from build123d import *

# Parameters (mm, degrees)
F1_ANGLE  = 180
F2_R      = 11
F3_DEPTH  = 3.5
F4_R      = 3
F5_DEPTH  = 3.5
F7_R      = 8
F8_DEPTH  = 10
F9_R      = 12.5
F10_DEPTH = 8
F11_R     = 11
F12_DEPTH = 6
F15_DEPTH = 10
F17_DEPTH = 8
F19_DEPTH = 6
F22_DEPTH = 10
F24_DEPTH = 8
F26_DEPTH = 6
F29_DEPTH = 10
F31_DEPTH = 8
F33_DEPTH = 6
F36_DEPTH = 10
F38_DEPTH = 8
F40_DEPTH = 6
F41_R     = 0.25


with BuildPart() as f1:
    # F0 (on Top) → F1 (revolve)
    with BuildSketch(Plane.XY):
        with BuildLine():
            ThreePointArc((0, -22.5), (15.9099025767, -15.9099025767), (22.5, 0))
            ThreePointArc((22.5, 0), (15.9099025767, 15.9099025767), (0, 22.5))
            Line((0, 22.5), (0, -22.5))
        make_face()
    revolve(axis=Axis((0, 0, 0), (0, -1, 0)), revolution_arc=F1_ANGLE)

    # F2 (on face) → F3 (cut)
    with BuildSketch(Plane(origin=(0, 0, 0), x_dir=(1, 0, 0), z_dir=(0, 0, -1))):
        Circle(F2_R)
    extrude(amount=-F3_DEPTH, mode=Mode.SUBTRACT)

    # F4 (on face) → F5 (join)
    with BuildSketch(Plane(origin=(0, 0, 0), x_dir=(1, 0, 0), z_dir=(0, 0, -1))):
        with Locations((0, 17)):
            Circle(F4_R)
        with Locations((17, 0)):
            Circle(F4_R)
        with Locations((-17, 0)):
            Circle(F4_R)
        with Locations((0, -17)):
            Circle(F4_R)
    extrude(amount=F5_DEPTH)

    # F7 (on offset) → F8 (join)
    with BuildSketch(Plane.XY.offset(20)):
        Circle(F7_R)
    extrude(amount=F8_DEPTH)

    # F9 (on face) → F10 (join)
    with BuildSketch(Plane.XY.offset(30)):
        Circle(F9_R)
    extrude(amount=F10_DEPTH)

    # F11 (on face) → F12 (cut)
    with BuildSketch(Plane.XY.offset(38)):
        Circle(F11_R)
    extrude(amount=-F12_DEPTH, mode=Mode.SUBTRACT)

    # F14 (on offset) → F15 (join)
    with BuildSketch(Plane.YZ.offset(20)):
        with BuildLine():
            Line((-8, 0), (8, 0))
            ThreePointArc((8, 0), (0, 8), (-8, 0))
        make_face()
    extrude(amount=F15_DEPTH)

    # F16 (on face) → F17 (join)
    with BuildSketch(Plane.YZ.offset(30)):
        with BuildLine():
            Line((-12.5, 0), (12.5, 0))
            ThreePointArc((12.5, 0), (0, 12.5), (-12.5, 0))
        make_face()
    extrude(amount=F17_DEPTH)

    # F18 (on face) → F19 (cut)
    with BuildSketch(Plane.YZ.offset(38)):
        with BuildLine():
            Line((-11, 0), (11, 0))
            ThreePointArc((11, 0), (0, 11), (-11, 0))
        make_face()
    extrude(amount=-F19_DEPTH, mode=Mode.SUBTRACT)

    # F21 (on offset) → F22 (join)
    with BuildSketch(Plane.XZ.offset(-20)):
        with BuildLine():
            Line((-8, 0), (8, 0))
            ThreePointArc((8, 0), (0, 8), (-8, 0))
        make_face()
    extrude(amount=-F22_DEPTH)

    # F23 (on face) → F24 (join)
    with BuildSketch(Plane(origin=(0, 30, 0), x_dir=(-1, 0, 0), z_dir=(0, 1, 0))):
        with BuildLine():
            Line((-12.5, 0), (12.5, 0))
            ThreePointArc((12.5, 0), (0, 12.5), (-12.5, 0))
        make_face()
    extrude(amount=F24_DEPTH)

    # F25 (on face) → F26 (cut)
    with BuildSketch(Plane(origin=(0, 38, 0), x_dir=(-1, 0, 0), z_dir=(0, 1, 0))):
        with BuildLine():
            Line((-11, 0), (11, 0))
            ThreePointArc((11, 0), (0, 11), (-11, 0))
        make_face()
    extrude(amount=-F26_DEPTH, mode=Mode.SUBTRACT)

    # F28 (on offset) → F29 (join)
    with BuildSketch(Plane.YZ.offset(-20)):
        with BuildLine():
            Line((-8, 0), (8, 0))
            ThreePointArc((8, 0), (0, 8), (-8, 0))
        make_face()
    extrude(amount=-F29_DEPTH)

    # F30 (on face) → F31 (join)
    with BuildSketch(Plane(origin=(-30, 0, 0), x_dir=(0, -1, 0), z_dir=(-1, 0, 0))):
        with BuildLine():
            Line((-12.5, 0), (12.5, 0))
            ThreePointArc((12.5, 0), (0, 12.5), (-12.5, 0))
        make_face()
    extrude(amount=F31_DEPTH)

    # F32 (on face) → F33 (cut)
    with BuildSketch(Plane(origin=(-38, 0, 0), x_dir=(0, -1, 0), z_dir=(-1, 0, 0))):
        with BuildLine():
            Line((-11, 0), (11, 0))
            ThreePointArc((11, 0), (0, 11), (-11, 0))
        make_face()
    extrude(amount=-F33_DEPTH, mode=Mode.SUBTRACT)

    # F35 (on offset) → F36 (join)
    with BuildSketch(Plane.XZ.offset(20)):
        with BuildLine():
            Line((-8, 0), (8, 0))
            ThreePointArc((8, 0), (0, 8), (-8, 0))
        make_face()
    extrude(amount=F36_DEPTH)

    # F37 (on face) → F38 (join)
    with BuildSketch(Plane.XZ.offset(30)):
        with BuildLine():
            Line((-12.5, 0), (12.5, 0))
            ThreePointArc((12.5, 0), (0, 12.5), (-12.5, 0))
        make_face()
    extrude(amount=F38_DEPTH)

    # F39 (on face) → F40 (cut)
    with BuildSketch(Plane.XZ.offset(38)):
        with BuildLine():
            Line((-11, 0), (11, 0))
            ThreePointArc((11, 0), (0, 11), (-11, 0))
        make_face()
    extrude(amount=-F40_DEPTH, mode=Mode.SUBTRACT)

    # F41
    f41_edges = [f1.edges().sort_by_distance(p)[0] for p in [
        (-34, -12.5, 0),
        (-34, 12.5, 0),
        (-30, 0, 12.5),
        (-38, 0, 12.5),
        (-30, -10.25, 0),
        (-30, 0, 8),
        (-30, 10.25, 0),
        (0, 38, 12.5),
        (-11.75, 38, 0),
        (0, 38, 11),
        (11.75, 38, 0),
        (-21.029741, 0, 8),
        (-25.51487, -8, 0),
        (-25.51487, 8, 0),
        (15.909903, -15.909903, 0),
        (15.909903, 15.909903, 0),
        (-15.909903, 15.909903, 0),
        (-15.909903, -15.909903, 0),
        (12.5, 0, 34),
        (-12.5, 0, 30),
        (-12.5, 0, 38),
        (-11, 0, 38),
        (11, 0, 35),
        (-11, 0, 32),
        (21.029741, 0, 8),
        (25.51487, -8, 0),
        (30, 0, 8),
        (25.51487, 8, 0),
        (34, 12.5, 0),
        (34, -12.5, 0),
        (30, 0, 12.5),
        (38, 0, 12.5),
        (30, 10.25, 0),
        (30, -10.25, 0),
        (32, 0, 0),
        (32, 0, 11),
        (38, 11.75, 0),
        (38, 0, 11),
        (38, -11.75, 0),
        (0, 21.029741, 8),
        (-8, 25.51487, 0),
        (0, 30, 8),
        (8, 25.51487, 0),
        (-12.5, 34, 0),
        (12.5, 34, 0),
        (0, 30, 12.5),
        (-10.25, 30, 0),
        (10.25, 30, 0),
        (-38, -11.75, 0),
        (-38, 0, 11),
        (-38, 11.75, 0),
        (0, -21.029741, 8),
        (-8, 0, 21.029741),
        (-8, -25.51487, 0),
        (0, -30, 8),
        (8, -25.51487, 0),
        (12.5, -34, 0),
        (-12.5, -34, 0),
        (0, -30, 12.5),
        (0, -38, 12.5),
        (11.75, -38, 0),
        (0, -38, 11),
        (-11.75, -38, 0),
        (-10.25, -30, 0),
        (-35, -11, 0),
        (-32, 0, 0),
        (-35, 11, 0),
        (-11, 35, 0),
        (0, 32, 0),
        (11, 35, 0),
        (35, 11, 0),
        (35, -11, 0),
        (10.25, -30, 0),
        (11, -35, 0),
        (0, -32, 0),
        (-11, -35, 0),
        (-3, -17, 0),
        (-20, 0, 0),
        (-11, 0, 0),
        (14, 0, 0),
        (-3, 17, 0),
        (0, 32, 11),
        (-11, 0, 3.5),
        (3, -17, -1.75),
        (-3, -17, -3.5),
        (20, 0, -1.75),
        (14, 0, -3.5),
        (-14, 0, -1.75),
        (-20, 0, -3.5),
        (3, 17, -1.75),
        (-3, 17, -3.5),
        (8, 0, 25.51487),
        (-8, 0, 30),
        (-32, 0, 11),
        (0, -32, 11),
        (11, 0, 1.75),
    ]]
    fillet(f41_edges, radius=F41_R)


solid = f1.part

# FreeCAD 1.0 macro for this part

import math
import FreeCAD as App
import Part
import Sketcher

V = App.Vector

doc = App.newDocument("Part")
body = doc.addObject("PartDesign::Body", "Body")

sketch1 = body.newObject("Sketcher::SketchObject", "Sketch")
sketch1.AttachmentSupport = (doc.getObject("XY_Plane"), [""])
sketch1.MapMode = "FlatFace"
sketch1.addGeometry([
    Part.ArcOfCircle(Part.Circle(V(0, 0, 0), V(0, 0, 1), 22), math.radians(-90), math.radians(90)),
    Part.LineSegment(V(0, 22, 0), V(0, -22, 0)),
], False)
sketch1.addConstraint([
    Sketcher.Constraint("Coincident", 0, 1, 1, 2),
    Sketcher.Constraint("Coincident", 1, 1, 0, 2),
    Sketcher.Constraint("Vertical", 1),
    Sketcher.Constraint("Coincident", 0, 3, -1, 1),
    Sketcher.Constraint("PointOnObject", 0, 1, -2),
    Sketcher.Constraint("Radius", 0, 22.5),
])
revolution = body.newObject("PartDesign::Revolution", "Revolution")
revolution.Profile = sketch1
revolution.ReferenceAxis = (sketch1, ["V_Axis"])
revolution.Angle = 180
revolution.Reversed = True

sketch2 = body.newObject("Sketcher::SketchObject", "Sketch001")
sketch2.AttachmentSupport = (doc.getObject("XY_Plane"), [""])
sketch2.MapMode = "FlatFace"
sketch2.addGeometry(Part.Circle(V(0, 0, 0), V(0, 0, 1), 11), False)
sketch2.addConstraint([
    Sketcher.Constraint("Coincident", 0, 3, -1, 1),
    Sketcher.Constraint("Diameter", 0, 22.0),
])
pocket1 = body.newObject("PartDesign::Pocket", "Pocket")
pocket1.Profile = sketch2
pocket1.Length = 3.5
pocket1.Reversed = True

sketch3 = body.newObject("Sketcher::SketchObject", "Sketch002")
sketch3.AttachmentSupport = (doc.getObject("XY_Plane"), [""])
sketch3.MapMode = "FlatFace"
sketch3.addGeometry([
    Part.Circle(V(0, -17, 0), V(0, 0, 1), 3),
    Part.Circle(V(17, 0, 0), V(0, 0, 1), 3),
    Part.Circle(V(-17, 0, 0), V(0, 0, 1), 3),
    Part.Circle(V(0, 17, 0), V(0, 0, 1), 3),
], False)
sketch3.addConstraint([
    Sketcher.Constraint("Equal", 0, 1),
    Sketcher.Constraint("Equal", 1, 2),
    Sketcher.Constraint("Equal", 2, 3),
    Sketcher.Constraint("Symmetric", 1, 3, 2, 3, -1, 1),
    Sketcher.Constraint("Symmetric", 0, 3, 3, 3, -1, 1),
    Sketcher.Constraint("PointOnObject", 0, 3, -2),
    Sketcher.Constraint("PointOnObject", 1, 3, -1),
    Sketcher.Constraint("Diameter", 0, 6.0),
    Sketcher.Constraint("DistanceY", 0, 3, -1, 1, 17.0),
    Sketcher.Constraint("DistanceX", -1, 1, 1, 3, 17.0),
])
pad1 = body.newObject("PartDesign::Pad", "Pad")
pad1.Profile = sketch3
pad1.Length = 3.5
pad1.Reversed = True

sketch4 = body.newObject("Sketcher::SketchObject", "Sketch003")
sketch4.AttachmentSupport = (doc.getObject("XY_Plane"), [""])
sketch4.MapMode = "FlatFace"
sketch4.AttachmentOffset = App.Placement(V(0, 0, 20), App.Rotation())
sketch4.addGeometry(Part.Circle(V(0, 0, 0), V(0, 0, 1), 8), False)
sketch4.addConstraint([
    Sketcher.Constraint("Coincident", 0, 3, -1, 1),
    Sketcher.Constraint("Diameter", 0, 16.0),
])
pad2 = body.newObject("PartDesign::Pad", "Pad001")
pad2.Profile = sketch4
pad2.Length = 10

sketch5 = body.newObject("Sketcher::SketchObject", "Sketch004")
sketch5.AttachmentSupport = (doc.getObject("XY_Plane"), [""])
sketch5.MapMode = "FlatFace"
sketch5.AttachmentOffset = App.Placement(V(0, 0, 30), App.Rotation())
sketch5.addGeometry(Part.Circle(V(0, 0, 0), V(0, 0, 1), 12), False)
sketch5.addConstraint([
    Sketcher.Constraint("Coincident", 0, 3, -1, 1),
    Sketcher.Constraint("Diameter", 0, 25.0),
])
pad3 = body.newObject("PartDesign::Pad", "Pad002")
pad3.Profile = sketch5
pad3.Length = 8

sketch6 = body.newObject("Sketcher::SketchObject", "Sketch005")
sketch6.AttachmentSupport = (doc.getObject("XY_Plane"), [""])
sketch6.MapMode = "FlatFace"
sketch6.AttachmentOffset = App.Placement(V(0, 0, 38), App.Rotation())
sketch6.addGeometry(Part.Circle(V(0, 0, 0), V(0, 0, 1), 11), False)
sketch6.addConstraint([
    Sketcher.Constraint("Coincident", 0, 3, -1, 1),
    Sketcher.Constraint("Diameter", 0, 22.0),
])
pocket2 = body.newObject("PartDesign::Pocket", "Pocket001")
pocket2.Profile = sketch6
pocket2.Length = 6

sketch7 = body.newObject("Sketcher::SketchObject", "Sketch006")
sketch7.AttachmentSupport = (doc.getObject("YZ_Plane"), [""])
sketch7.MapMode = "FlatFace"
sketch7.AttachmentOffset = App.Placement(V(0, 0, 20), App.Rotation())
sketch7.addGeometry([
    Part.LineSegment(V(-8, 0, 0), V(8, 0, 0)),
    Part.ArcOfCircle(Part.Circle(V(0, 0, 0), V(0, 0, 1), 8), math.radians(0), math.radians(180)),
], False)
sketch7.addConstraint([
    Sketcher.Constraint("Coincident", 0, 1, 1, 2),
    Sketcher.Constraint("Coincident", 1, 1, 0, 2),
    Sketcher.Constraint("Horizontal", 0),
    Sketcher.Constraint("Coincident", 1, 3, -1, 1),
    Sketcher.Constraint("PointOnObject", 0, 1, -1),
    Sketcher.Constraint("Radius", 1, 8.0),
])
pad4 = body.newObject("PartDesign::Pad", "Pad003")
pad4.Profile = sketch7
pad4.Length = 10

sketch8 = body.newObject("Sketcher::SketchObject", "Sketch007")
sketch8.AttachmentSupport = (doc.getObject("YZ_Plane"), [""])
sketch8.MapMode = "FlatFace"
sketch8.AttachmentOffset = App.Placement(V(0, 0, 30), App.Rotation())
sketch8.addGeometry([
    Part.LineSegment(V(-12, 0, 0), V(12, 0, 0)),
    Part.ArcOfCircle(Part.Circle(V(0, 0, 0), V(0, 0, 1), 12), math.radians(0), math.radians(180)),
], False)
sketch8.addConstraint([
    Sketcher.Constraint("Coincident", 0, 1, 1, 2),
    Sketcher.Constraint("Coincident", 1, 1, 0, 2),
    Sketcher.Constraint("Horizontal", 0),
    Sketcher.Constraint("Coincident", 1, 3, -1, 1),
    Sketcher.Constraint("PointOnObject", 0, 1, -1),
    Sketcher.Constraint("Radius", 1, 12.5),
])
pad5 = body.newObject("PartDesign::Pad", "Pad004")
pad5.Profile = sketch8
pad5.Length = 8

sketch9 = body.newObject("Sketcher::SketchObject", "Sketch008")
sketch9.AttachmentSupport = (doc.getObject("YZ_Plane"), [""])
sketch9.MapMode = "FlatFace"
sketch9.AttachmentOffset = App.Placement(V(0, 0, 38), App.Rotation())
sketch9.addGeometry([
    Part.LineSegment(V(-11, 0, 0), V(11, 0, 0)),
    Part.ArcOfCircle(Part.Circle(V(0, 0, 0), V(0, 0, 1), 11), math.radians(0), math.radians(180)),
], False)
sketch9.addConstraint([
    Sketcher.Constraint("Coincident", 0, 1, 1, 2),
    Sketcher.Constraint("Coincident", 1, 1, 0, 2),
    Sketcher.Constraint("Horizontal", 0),
    Sketcher.Constraint("Coincident", 1, 3, -1, 1),
    Sketcher.Constraint("PointOnObject", 0, 1, -1),
    Sketcher.Constraint("Radius", 1, 11.0),
])
pocket3 = body.newObject("PartDesign::Pocket", "Pocket002")
pocket3.Profile = sketch9
pocket3.Length = 6

sketch10 = body.newObject("Sketcher::SketchObject", "Sketch009")
sketch10.AttachmentSupport = (doc.getObject("XZ_Plane"), [""])
sketch10.MapMode = "FlatFace"
sketch10.AttachmentOffset = App.Placement(V(0, 0, -20), App.Rotation())
sketch10.addGeometry([
    Part.LineSegment(V(-8, 0, 0), V(8, 0, 0)),
    Part.ArcOfCircle(Part.Circle(V(0, 0, 0), V(0, 0, 1), 8), math.radians(0), math.radians(180)),
], False)
sketch10.addConstraint([
    Sketcher.Constraint("Coincident", 0, 1, 1, 2),
    Sketcher.Constraint("Coincident", 1, 1, 0, 2),
    Sketcher.Constraint("Horizontal", 0),
    Sketcher.Constraint("Coincident", 1, 3, -1, 1),
    Sketcher.Constraint("PointOnObject", 0, 1, -1),
    Sketcher.Constraint("Radius", 1, 8.0),
])
pad6 = body.newObject("PartDesign::Pad", "Pad005")
pad6.Profile = sketch10
pad6.Length = 10
pad6.Reversed = True

sketch11 = body.newObject("Sketcher::SketchObject", "Sketch010")
sketch11.AttachmentSupport = (doc.getObject("XZ_Plane"), [""])
sketch11.MapMode = "FlatFace"
sketch11.AttachmentOffset = App.Placement(V(0, 0, -30), App.Rotation())
sketch11.addGeometry([
    Part.LineSegment(V(12, 0, 0), V(-12, 0, 0)),
    Part.ArcOfCircle(Part.Circle(V(0, 0, 0), V(0, 0, 1), 12), math.radians(0), math.radians(180)),
], False)
sketch11.addConstraint([
    Sketcher.Constraint("Coincident", 0, 1, 1, 1),
    Sketcher.Constraint("Coincident", 1, 2, 0, 2),
    Sketcher.Constraint("Horizontal", 0),
    Sketcher.Constraint("Coincident", 1, 3, -1, 1),
    Sketcher.Constraint("PointOnObject", 0, 1, -1),
    Sketcher.Constraint("Radius", 1, 12.5),
])
pad7 = body.newObject("PartDesign::Pad", "Pad006")
pad7.Profile = sketch11
pad7.Length = 8
pad7.Reversed = True

sketch12 = body.newObject("Sketcher::SketchObject", "Sketch011")
sketch12.AttachmentSupport = (doc.getObject("XZ_Plane"), [""])
sketch12.MapMode = "FlatFace"
sketch12.AttachmentOffset = App.Placement(V(0, 0, -38), App.Rotation())
sketch12.addGeometry([
    Part.LineSegment(V(11, 0, 0), V(-11, 0, 0)),
    Part.ArcOfCircle(Part.Circle(V(0, 0, 0), V(0, 0, 1), 11), math.radians(0), math.radians(180)),
], False)
sketch12.addConstraint([
    Sketcher.Constraint("Coincident", 0, 1, 1, 1),
    Sketcher.Constraint("Coincident", 1, 2, 0, 2),
    Sketcher.Constraint("Horizontal", 0),
    Sketcher.Constraint("Coincident", 1, 3, -1, 1),
    Sketcher.Constraint("PointOnObject", 0, 1, -1),
    Sketcher.Constraint("Radius", 1, 11.0),
])
pocket4 = body.newObject("PartDesign::Pocket", "Pocket003")
pocket4.Profile = sketch12
pocket4.Length = 6
pocket4.Reversed = True

sketch13 = body.newObject("Sketcher::SketchObject", "Sketch012")
sketch13.AttachmentSupport = (doc.getObject("YZ_Plane"), [""])
sketch13.MapMode = "FlatFace"
sketch13.AttachmentOffset = App.Placement(V(0, 0, -20), App.Rotation())
sketch13.addGeometry([
    Part.LineSegment(V(-8, 0, 0), V(8, 0, 0)),
    Part.ArcOfCircle(Part.Circle(V(0, 0, 0), V(0, 0, 1), 8), math.radians(0), math.radians(180)),
], False)
sketch13.addConstraint([
    Sketcher.Constraint("Coincident", 0, 1, 1, 2),
    Sketcher.Constraint("Coincident", 1, 1, 0, 2),
    Sketcher.Constraint("Horizontal", 0),
    Sketcher.Constraint("Coincident", 1, 3, -1, 1),
    Sketcher.Constraint("PointOnObject", 0, 1, -1),
    Sketcher.Constraint("Radius", 1, 8.0),
])
pad8 = body.newObject("PartDesign::Pad", "Pad007")
pad8.Profile = sketch13
pad8.Length = 10
pad8.Reversed = True

sketch14 = body.newObject("Sketcher::SketchObject", "Sketch013")
sketch14.AttachmentSupport = (doc.getObject("YZ_Plane"), [""])
sketch14.MapMode = "FlatFace"
sketch14.AttachmentOffset = App.Placement(V(0, 0, -30), App.Rotation())
sketch14.addGeometry([
    Part.LineSegment(V(12, 0, 0), V(-12, 0, 0)),
    Part.ArcOfCircle(Part.Circle(V(0, 0, 0), V(0, 0, 1), 12), math.radians(0), math.radians(180)),
], False)
sketch14.addConstraint([
    Sketcher.Constraint("Coincident", 0, 1, 1, 1),
    Sketcher.Constraint("Coincident", 1, 2, 0, 2),
    Sketcher.Constraint("Horizontal", 0),
    Sketcher.Constraint("Coincident", 1, 3, -1, 1),
    Sketcher.Constraint("PointOnObject", 0, 1, -1),
    Sketcher.Constraint("Radius", 1, 12.5),
])
pad9 = body.newObject("PartDesign::Pad", "Pad008")
pad9.Profile = sketch14
pad9.Length = 8
pad9.Reversed = True

sketch15 = body.newObject("Sketcher::SketchObject", "Sketch014")
sketch15.AttachmentSupport = (doc.getObject("YZ_Plane"), [""])
sketch15.MapMode = "FlatFace"
sketch15.AttachmentOffset = App.Placement(V(0, 0, -38), App.Rotation())
sketch15.addGeometry([
    Part.LineSegment(V(11, 0, 0), V(-11, 0, 0)),
    Part.ArcOfCircle(Part.Circle(V(0, 0, 0), V(0, 0, 1), 11), math.radians(0), math.radians(180)),
], False)
sketch15.addConstraint([
    Sketcher.Constraint("Coincident", 0, 1, 1, 1),
    Sketcher.Constraint("Coincident", 1, 2, 0, 2),
    Sketcher.Constraint("Horizontal", 0),
    Sketcher.Constraint("Coincident", 1, 3, -1, 1),
    Sketcher.Constraint("PointOnObject", 0, 1, -1),
    Sketcher.Constraint("Radius", 1, 11.0),
])
pocket5 = body.newObject("PartDesign::Pocket", "Pocket004")
pocket5.Profile = sketch15
pocket5.Length = 6
pocket5.Reversed = True

sketch16 = body.newObject("Sketcher::SketchObject", "Sketch015")
sketch16.AttachmentSupport = (doc.getObject("XZ_Plane"), [""])
sketch16.MapMode = "FlatFace"
sketch16.AttachmentOffset = App.Placement(V(0, 0, 20), App.Rotation())
sketch16.addGeometry([
    Part.LineSegment(V(-8, 0, 0), V(8, 0, 0)),
    Part.ArcOfCircle(Part.Circle(V(0, 0, 0), V(0, 0, 1), 8), math.radians(0), math.radians(180)),
], False)
sketch16.addConstraint([
    Sketcher.Constraint("Coincident", 0, 1, 1, 2),
    Sketcher.Constraint("Coincident", 1, 1, 0, 2),
    Sketcher.Constraint("Horizontal", 0),
    Sketcher.Constraint("Coincident", 1, 3, -1, 1),
    Sketcher.Constraint("PointOnObject", 0, 1, -1),
    Sketcher.Constraint("Radius", 1, 8.0),
])
pad10 = body.newObject("PartDesign::Pad", "Pad009")
pad10.Profile = sketch16
pad10.Length = 10

sketch17 = body.newObject("Sketcher::SketchObject", "Sketch016")
sketch17.AttachmentSupport = (doc.getObject("XZ_Plane"), [""])
sketch17.MapMode = "FlatFace"
sketch17.AttachmentOffset = App.Placement(V(0, 0, 30), App.Rotation())
sketch17.addGeometry([
    Part.LineSegment(V(-12, 0, 0), V(12, 0, 0)),
    Part.ArcOfCircle(Part.Circle(V(0, 0, 0), V(0, 0, 1), 12), math.radians(0), math.radians(180)),
], False)
sketch17.addConstraint([
    Sketcher.Constraint("Coincident", 0, 1, 1, 2),
    Sketcher.Constraint("Coincident", 1, 1, 0, 2),
    Sketcher.Constraint("Horizontal", 0),
    Sketcher.Constraint("Coincident", 1, 3, -1, 1),
    Sketcher.Constraint("PointOnObject", 0, 1, -1),
    Sketcher.Constraint("Radius", 1, 12.5),
])
pad11 = body.newObject("PartDesign::Pad", "Pad010")
pad11.Profile = sketch17
pad11.Length = 8

sketch18 = body.newObject("Sketcher::SketchObject", "Sketch017")
sketch18.AttachmentSupport = (doc.getObject("XZ_Plane"), [""])
sketch18.MapMode = "FlatFace"
sketch18.AttachmentOffset = App.Placement(V(0, 0, 38), App.Rotation())
sketch18.addGeometry([
    Part.LineSegment(V(-11, 0, 0), V(11, 0, 0)),
    Part.ArcOfCircle(Part.Circle(V(0, 0, 0), V(0, 0, 1), 11), math.radians(0), math.radians(180)),
], False)
sketch18.addConstraint([
    Sketcher.Constraint("Coincident", 0, 1, 1, 2),
    Sketcher.Constraint("Coincident", 1, 1, 0, 2),
    Sketcher.Constraint("Horizontal", 0),
    Sketcher.Constraint("Coincident", 1, 3, -1, 1),
    Sketcher.Constraint("PointOnObject", 0, 1, -1),
    Sketcher.Constraint("Radius", 1, 11.0),
])
pocket6 = body.newObject("PartDesign::Pocket", "Pocket005")
pocket6.Profile = sketch18
pocket6.Length = 6
doc.recompute()

fillet = body.newObject("PartDesign::Fillet", "Fillet")
fillet.Base = (pocket6, ["Edge1"])
fillet.UseAllEdges = True
fillet.Radius = 0.25

doc.recompute()
